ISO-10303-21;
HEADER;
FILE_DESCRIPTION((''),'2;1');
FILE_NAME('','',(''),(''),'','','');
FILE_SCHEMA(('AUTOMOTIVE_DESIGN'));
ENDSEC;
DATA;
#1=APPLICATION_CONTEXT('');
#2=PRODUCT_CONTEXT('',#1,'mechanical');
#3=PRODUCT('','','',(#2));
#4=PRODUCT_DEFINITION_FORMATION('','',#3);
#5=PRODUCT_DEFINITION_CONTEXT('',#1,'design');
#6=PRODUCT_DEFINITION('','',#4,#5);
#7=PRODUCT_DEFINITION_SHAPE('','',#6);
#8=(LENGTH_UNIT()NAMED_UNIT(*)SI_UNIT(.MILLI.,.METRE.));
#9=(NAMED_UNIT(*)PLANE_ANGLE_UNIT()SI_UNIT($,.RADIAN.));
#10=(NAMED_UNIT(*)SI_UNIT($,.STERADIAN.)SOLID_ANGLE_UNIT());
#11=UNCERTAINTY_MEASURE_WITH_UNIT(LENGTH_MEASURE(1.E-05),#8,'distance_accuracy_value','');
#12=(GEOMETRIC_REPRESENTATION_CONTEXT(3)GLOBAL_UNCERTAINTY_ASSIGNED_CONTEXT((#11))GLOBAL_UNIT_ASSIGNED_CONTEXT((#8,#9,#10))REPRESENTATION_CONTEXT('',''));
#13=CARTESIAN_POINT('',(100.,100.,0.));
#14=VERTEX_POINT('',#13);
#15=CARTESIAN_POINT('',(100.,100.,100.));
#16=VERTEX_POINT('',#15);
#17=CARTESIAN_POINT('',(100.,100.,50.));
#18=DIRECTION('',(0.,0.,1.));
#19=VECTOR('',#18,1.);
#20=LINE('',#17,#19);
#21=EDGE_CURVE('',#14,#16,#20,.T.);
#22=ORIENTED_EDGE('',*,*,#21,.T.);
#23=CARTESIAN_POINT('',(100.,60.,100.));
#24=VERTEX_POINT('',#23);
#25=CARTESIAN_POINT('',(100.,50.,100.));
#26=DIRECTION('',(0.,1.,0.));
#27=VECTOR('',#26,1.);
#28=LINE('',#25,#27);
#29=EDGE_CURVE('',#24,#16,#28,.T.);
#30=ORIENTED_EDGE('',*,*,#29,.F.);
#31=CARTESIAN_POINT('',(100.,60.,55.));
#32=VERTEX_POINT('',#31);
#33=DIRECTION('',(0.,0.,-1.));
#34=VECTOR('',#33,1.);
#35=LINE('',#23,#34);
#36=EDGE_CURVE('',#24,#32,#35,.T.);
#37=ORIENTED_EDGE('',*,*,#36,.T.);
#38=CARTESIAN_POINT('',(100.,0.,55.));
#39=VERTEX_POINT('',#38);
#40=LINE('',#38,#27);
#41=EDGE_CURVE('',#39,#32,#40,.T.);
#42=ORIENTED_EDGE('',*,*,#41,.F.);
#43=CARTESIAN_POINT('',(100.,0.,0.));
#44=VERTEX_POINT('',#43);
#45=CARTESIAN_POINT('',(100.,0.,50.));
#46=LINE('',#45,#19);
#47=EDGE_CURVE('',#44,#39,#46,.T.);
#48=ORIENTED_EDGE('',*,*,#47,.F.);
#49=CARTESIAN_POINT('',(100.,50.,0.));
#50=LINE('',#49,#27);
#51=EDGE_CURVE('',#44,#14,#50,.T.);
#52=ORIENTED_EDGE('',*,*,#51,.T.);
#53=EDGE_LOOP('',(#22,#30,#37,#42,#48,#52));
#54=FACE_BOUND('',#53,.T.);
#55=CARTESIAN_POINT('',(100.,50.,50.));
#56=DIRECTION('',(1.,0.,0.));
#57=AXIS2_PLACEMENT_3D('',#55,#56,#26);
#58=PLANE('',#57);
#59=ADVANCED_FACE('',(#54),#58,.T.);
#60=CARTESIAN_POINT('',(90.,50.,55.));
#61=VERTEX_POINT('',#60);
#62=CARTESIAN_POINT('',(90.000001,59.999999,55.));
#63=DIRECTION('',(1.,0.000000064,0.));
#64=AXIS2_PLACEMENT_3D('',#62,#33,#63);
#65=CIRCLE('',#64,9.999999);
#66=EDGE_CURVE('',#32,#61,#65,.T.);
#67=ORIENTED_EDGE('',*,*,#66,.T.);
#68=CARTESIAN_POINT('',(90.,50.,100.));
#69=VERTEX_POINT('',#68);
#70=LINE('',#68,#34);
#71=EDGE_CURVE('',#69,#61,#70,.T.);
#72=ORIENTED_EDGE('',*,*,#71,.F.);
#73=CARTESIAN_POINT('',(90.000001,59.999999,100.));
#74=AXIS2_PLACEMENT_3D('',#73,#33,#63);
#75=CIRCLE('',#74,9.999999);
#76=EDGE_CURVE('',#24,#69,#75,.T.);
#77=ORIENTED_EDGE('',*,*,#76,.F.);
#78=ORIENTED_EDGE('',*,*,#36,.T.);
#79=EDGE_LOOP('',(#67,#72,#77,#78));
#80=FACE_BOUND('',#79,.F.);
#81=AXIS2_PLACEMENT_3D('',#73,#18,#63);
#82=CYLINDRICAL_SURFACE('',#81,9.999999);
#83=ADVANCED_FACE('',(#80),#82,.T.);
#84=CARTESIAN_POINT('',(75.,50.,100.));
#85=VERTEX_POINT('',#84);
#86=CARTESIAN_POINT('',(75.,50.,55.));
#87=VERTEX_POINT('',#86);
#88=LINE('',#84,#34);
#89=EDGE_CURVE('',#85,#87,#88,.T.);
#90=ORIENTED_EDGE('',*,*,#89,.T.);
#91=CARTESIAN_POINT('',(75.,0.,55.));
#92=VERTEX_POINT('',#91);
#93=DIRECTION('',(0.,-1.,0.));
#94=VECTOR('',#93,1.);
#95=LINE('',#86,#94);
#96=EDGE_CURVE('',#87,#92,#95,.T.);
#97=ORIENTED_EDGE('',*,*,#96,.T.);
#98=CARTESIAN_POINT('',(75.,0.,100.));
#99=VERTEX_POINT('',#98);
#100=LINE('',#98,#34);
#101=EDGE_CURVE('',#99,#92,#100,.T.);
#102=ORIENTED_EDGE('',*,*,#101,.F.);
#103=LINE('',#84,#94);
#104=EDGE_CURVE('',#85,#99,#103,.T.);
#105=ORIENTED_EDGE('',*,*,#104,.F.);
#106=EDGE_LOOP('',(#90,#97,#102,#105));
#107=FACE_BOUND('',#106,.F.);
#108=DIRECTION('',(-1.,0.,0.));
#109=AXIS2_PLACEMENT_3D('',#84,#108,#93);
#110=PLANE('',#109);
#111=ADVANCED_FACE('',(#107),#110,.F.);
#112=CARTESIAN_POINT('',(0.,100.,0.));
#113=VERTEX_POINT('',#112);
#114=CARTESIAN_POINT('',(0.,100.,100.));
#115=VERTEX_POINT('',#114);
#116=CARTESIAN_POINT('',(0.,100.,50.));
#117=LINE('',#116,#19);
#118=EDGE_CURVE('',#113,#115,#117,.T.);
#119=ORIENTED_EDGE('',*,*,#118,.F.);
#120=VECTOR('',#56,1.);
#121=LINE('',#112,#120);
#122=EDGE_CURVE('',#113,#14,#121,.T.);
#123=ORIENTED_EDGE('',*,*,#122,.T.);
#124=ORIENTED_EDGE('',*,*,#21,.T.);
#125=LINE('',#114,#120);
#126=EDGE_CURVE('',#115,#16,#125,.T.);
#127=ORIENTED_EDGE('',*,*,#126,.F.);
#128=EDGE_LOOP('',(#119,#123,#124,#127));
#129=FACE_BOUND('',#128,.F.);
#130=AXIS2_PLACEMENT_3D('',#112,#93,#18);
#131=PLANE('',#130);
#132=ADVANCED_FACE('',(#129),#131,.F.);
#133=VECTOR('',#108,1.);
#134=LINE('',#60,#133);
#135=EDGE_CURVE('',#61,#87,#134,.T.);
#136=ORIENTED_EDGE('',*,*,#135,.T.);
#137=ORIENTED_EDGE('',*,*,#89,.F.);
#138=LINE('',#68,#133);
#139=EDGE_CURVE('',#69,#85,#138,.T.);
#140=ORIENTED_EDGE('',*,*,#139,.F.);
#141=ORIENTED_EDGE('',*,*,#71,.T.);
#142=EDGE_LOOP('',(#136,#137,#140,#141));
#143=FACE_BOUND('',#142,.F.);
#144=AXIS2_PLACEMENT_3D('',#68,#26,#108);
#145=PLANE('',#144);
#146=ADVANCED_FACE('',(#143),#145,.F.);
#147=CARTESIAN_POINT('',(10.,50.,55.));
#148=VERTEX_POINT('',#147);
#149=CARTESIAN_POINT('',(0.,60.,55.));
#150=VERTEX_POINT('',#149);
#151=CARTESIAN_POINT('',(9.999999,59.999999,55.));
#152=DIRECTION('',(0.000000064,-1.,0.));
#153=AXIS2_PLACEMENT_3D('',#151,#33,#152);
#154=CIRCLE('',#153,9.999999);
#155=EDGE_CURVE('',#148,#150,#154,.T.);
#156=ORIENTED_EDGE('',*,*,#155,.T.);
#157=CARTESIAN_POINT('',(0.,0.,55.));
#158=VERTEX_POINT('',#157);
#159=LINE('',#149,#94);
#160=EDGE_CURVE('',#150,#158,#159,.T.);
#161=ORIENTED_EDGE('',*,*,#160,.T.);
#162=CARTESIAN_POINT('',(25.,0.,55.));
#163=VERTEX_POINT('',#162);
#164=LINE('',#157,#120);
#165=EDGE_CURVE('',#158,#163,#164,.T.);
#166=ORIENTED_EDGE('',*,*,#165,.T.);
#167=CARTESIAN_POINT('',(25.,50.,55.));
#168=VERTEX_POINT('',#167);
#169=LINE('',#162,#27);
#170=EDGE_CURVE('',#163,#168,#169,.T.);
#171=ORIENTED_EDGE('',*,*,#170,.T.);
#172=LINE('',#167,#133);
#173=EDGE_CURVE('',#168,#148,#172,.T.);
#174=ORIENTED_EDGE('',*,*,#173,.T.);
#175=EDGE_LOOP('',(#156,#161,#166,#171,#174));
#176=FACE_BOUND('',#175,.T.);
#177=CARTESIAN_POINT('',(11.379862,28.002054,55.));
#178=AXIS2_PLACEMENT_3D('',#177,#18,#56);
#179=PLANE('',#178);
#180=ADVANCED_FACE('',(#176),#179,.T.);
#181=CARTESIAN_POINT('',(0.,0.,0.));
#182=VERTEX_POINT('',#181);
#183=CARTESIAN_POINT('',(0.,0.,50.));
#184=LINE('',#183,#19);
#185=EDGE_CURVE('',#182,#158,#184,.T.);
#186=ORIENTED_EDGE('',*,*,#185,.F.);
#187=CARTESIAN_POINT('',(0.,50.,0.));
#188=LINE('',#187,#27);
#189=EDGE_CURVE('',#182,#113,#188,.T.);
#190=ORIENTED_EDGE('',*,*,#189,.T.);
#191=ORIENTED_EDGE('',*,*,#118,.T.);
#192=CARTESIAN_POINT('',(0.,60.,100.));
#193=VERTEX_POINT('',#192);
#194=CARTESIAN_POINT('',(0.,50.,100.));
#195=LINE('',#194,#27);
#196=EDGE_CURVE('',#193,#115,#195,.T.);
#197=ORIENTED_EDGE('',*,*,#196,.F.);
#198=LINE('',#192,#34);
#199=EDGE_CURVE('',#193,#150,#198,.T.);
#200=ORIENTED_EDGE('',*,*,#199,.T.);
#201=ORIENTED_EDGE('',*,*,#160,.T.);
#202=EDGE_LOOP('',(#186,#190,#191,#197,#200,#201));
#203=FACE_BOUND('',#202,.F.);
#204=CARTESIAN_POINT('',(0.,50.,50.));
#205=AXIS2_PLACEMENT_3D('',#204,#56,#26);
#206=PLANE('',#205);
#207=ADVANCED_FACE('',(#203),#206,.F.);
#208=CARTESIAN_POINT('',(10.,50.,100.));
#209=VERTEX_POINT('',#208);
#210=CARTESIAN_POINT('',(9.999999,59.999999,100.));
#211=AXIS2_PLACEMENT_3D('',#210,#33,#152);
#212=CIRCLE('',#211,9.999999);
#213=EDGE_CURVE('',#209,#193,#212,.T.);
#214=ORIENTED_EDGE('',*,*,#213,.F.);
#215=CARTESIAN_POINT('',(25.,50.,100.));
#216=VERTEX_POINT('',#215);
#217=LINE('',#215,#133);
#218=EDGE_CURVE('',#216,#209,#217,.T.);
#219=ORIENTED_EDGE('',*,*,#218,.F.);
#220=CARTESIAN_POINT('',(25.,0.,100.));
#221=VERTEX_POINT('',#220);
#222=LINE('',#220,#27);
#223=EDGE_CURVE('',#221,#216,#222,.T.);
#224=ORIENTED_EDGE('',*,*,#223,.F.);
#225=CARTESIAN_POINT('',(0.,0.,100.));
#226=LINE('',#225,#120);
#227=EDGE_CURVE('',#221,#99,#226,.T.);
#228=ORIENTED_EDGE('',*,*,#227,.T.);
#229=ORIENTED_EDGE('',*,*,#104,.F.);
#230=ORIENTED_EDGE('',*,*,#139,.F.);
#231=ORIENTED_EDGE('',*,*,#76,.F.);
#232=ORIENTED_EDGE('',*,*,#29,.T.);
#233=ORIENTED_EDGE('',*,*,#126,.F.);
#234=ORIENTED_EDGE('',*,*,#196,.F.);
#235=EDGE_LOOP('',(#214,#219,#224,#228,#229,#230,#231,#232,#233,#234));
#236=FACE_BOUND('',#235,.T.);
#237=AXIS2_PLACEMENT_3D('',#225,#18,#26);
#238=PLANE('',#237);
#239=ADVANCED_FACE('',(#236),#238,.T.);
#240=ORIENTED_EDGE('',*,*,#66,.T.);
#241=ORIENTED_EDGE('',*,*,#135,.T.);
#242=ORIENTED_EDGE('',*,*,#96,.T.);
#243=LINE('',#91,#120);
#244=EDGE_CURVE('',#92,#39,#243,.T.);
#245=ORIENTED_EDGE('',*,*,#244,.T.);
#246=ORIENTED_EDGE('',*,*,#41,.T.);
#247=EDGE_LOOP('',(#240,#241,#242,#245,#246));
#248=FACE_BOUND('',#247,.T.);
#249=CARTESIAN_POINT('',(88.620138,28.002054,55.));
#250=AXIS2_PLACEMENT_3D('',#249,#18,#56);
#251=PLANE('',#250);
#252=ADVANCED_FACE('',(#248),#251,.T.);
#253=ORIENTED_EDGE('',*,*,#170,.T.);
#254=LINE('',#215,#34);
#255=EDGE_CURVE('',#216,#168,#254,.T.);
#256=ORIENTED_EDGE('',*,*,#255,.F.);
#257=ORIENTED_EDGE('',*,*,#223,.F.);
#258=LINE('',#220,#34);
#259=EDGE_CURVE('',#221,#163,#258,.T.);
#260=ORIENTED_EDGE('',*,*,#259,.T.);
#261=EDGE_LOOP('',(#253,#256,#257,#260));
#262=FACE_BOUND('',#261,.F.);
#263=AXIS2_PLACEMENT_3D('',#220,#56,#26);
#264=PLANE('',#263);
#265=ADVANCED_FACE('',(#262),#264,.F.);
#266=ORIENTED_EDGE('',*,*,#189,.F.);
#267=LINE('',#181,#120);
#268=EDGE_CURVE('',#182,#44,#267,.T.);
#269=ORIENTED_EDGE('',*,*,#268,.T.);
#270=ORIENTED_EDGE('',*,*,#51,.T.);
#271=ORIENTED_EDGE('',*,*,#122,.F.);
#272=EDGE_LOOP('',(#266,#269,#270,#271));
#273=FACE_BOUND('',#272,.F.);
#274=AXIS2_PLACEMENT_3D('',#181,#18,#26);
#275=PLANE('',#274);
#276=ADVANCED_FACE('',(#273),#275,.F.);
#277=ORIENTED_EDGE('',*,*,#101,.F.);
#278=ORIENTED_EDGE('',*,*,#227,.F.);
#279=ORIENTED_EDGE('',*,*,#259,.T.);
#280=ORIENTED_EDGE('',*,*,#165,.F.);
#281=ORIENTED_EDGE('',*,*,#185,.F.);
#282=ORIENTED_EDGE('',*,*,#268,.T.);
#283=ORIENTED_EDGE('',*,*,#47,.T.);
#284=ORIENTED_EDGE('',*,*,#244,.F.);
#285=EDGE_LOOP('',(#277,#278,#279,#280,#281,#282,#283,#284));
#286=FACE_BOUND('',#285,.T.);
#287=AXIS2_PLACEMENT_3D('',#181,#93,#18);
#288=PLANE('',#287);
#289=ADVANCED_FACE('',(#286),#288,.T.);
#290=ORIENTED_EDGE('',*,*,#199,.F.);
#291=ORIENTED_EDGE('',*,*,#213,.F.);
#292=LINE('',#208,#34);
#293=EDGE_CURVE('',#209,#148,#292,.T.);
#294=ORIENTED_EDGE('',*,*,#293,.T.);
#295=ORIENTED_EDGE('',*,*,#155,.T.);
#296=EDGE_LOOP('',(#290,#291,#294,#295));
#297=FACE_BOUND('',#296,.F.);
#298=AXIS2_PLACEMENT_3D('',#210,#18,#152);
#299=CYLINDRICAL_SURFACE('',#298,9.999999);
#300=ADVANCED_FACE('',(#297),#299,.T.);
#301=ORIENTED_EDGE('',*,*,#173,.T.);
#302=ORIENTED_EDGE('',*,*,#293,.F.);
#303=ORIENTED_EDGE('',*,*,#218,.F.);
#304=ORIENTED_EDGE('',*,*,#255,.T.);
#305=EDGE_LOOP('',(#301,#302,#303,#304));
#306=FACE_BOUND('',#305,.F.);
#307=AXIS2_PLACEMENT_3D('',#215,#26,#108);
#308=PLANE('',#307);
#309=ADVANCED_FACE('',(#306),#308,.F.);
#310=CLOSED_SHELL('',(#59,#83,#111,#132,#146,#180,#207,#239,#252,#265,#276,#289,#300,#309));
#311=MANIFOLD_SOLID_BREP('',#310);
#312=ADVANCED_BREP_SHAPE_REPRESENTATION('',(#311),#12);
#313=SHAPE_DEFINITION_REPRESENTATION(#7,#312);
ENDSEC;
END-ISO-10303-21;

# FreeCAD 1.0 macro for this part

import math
import FreeCAD as App
import Part
import Sketcher
Q = App.Units.Quantity

doc = App.newDocument("Part")
body = doc.addObject("PartDesign::Body", "Body")

sketch1 = body.newObject("Sketcher::SketchObject", "Sketch")
sketch1.AttachmentSupport = (doc.getObject("YZ_Plane"), [""])
sketch1.MapMode = "FlatFace"
sketch1.addGeometry([
    Part.LineSegment(App.Vector(0, 100, 0), App.Vector(0, 0, 0)),
    Part.LineSegment(App.Vector(0, 0, 0), App.Vector(100, 0, 0)),
    Part.LineSegment(App.Vector(100, 0, 0), App.Vector(100, 100, 0)),
    Part.LineSegment(App.Vector(100, 100, 0), App.Vector(0, 100, 0)),
], False)
sketch1.addConstraint([
    Sketcher.Constraint("Coincident", 0, 2, 1, 1),
    Sketcher.Constraint("Coincident", 1, 2, 2, 1),
    Sketcher.Constraint("Coincident", 2, 2, 3, 1),
    Sketcher.Constraint("Coincident", 3, 2, 0, 1),
    Sketcher.Constraint("Vertical", 0),
    Sketcher.Constraint("Horizontal", 1),
    Sketcher.Constraint("Vertical", 2),
    Sketcher.Constraint("Horizontal", 3),
    Sketcher.Constraint("Coincident", 0, 2, -1, 1),
    Sketcher.Constraint("Equal", 3, 0),
    Sketcher.Constraint("DistanceX", 1, 1, 1, 2, Q("100 mm")),
])
pad1 = body.newObject("PartDesign::Pad", "Pad")
pad1.Profile = sketch1
pad1.Length = 100

sketch2 = body.newObject("Sketcher::SketchObject", "Sketch001")
sketch2.AttachmentSupport = (doc.getObject("XY_Plane"), [""])
sketch2.MapMode = "FlatFace"
sketch2.AttachmentOffset = App.Placement(App.Vector(0, 0, 100), App.Rotation())
sketch2.addGeometry([
    Part.ArcOfCircle(Part.Circle(App.Vector(9.999999, 59.999999, 0), App.Vector(0, 0, 1), 9.999999), math.radians(179.999996), math.radians(270.000004)),
    Part.LineSegment(App.Vector(0, 60, 0), App.Vector(0, 0, 0)),
    Part.LineSegment(App.Vector(0, 0, 0), App.Vector(25, 0, 0)),
    Part.LineSegment(App.Vector(25, 0, 0), App.Vector(25, 50, 0)),
    Part.LineSegment(App.Vector(25, 50, 0), App.Vector(10, 50, 0)),
    Part.LineSegment(App.Vector(100, 0, 0), App.Vector(100, 60, 0)),
    Part.ArcOfCircle(Part.Circle(App.Vector(90.000001, 59.999999, 0), App.Vector(0, 0, 1), 9.999999), math.radians(-90.000004), math.radians(0.000004)),
    Part.LineSegment(App.Vector(90, 50, 0), App.Vector(75, 50, 0)),
    Part.LineSegment(App.Vector(75, 50, 0), App.Vector(75, 0, 0)),
    Part.LineSegment(App.Vector(75, 0, 0), App.Vector(100, 0, 0)),
], False)
sketch2.addConstraint([
    Sketcher.Constraint("Tangent", 0, 1, 1, 1),
    Sketcher.Constraint("Coincident", 1, 2, 2, 1),
    Sketcher.Constraint("Coincident", 2, 2, 3, 1),
    Sketcher.Constraint("Coincident", 3, 2, 4, 1),
    Sketcher.Constraint("Tangent", 4, 2, 0, 2),
    Sketcher.Constraint("Tangent", 5, 2, 6, 2),
    Sketcher.Constraint("Tangent", 6, 1, 7, 1),
    Sketcher.Constraint("Coincident", 7, 2, 8, 1),
    Sketcher.Constraint("Coincident", 8, 2, 9, 1),
    Sketcher.Constraint("Coincident", 9, 2, 5, 1),
    Sketcher.Constraint("Vertical", 1),
    Sketcher.Constraint("Horizontal", 2),
    Sketcher.Constraint("Vertical", 3),
    Sketcher.Constraint("Horizontal", 4),
    Sketcher.Constraint("Vertical", 5),
    Sketcher.Constraint("Horizontal", 7),
    Sketcher.Constraint("Vertical", 8),
    Sketcher.Constraint("Horizontal", 9),
    Sketcher.Constraint("Coincident", 1, 2, -1, 1),
    Sketcher.Constraint("Equal", 0, 6),
    Sketcher.Constraint("PointOnObject", 8, 2, -1),
    Sketcher.Constraint("Horizontal", 0, 3, 6, 3),
    Sketcher.Constraint("Equal", 4, 7),
    Sketcher.Constraint("Radius", 0, Q("9.999999 mm")),
    Sketcher.Constraint("DistanceX", 2, 1, 2, 2, Q("25 mm")),
    Sketcher.Constraint("DistanceY", 1, 2, 1, 1, Q("60 mm")),
    Sketcher.Constraint("DistanceX", -1, 1, 6, 3, Q("90.000001 mm")),
])
pocket1 = body.newObject("PartDesign::Pocket", "Pocket")
pocket1.Profile = sketch2
pocket1.Length = 45

doc.recompute()
